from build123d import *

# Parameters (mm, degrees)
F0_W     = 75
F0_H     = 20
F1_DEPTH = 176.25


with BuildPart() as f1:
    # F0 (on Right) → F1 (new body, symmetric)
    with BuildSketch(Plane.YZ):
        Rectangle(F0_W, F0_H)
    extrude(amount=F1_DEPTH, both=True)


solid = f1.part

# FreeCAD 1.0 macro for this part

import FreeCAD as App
import Part
import Sketcher
from FreeCAD import Vector
Q = App.Units.Quantity

doc = App.newDocument("Part")
body = doc.addObject("PartDesign::Body", "Body")

# Sketch on YZ plane
sketch1 = doc.addObject("Sketcher::SketchObject", "Sketch")
body.addObject(sketch1)
sketch1.AttachmentSupport = (doc.YZ_Plane, [""])
sketch1.MapMode = "FlatFace"
sketch1.addGeometry(Part.LineSegment(Vector(-38, 10, 0), Vector(-38, -10, 0)), False)
sketch1.addGeometry(Part.LineSegment(Vector(-38, -10, 0), Vector(38, -10, 0)), False)
sketch1.addGeometry(Part.LineSegment(Vector(38, -10, 0), Vector(38, 10, 0)), False)
sketch1.addGeometry(Part.LineSegment(Vector(38, 10, 0), Vector(-38, 10, 0)), False)
sketch1.addConstraint(Sketcher.Constraint("Coincident", 0, 2, 1, 1))
sketch1.addConstraint(Sketcher.Constraint("Coincident", 1, 2, 2, 1))
sketch1.addConstraint(Sketcher.Constraint("Coincident", 2, 2, 3, 1))
sketch1.addConstraint(Sketcher.Constraint("Coincident", 3, 2, 0, 1))
sketch1.addConstraint(Sketcher.Constraint("Vertical", 0))
sketch1.addConstraint(Sketcher.Constraint("Horizontal", 1))
sketch1.addConstraint(Sketcher.Constraint("Vertical", 2))
sketch1.addConstraint(Sketcher.Constraint("Horizontal", 3))
sketch1.addConstraint(Sketcher.Constraint("Symmetric", 0, 2, 2, 2, -1, 1))
sketch1.addConstraint(Sketcher.Constraint("DistanceX", 1, 1, 1, 2, Q("75 mm")))
sketch1.addConstraint(Sketcher.Constraint("DistanceY", 0, 2, 0, 1, Q("20 mm")))
pad1 = doc.addObject("PartDesign::Pad", "Pad")
body.addObject(pad1)
pad1.Profile = sketch1
pad1.Length = 352.5
pad1.Midplane = True

doc.recompute()
